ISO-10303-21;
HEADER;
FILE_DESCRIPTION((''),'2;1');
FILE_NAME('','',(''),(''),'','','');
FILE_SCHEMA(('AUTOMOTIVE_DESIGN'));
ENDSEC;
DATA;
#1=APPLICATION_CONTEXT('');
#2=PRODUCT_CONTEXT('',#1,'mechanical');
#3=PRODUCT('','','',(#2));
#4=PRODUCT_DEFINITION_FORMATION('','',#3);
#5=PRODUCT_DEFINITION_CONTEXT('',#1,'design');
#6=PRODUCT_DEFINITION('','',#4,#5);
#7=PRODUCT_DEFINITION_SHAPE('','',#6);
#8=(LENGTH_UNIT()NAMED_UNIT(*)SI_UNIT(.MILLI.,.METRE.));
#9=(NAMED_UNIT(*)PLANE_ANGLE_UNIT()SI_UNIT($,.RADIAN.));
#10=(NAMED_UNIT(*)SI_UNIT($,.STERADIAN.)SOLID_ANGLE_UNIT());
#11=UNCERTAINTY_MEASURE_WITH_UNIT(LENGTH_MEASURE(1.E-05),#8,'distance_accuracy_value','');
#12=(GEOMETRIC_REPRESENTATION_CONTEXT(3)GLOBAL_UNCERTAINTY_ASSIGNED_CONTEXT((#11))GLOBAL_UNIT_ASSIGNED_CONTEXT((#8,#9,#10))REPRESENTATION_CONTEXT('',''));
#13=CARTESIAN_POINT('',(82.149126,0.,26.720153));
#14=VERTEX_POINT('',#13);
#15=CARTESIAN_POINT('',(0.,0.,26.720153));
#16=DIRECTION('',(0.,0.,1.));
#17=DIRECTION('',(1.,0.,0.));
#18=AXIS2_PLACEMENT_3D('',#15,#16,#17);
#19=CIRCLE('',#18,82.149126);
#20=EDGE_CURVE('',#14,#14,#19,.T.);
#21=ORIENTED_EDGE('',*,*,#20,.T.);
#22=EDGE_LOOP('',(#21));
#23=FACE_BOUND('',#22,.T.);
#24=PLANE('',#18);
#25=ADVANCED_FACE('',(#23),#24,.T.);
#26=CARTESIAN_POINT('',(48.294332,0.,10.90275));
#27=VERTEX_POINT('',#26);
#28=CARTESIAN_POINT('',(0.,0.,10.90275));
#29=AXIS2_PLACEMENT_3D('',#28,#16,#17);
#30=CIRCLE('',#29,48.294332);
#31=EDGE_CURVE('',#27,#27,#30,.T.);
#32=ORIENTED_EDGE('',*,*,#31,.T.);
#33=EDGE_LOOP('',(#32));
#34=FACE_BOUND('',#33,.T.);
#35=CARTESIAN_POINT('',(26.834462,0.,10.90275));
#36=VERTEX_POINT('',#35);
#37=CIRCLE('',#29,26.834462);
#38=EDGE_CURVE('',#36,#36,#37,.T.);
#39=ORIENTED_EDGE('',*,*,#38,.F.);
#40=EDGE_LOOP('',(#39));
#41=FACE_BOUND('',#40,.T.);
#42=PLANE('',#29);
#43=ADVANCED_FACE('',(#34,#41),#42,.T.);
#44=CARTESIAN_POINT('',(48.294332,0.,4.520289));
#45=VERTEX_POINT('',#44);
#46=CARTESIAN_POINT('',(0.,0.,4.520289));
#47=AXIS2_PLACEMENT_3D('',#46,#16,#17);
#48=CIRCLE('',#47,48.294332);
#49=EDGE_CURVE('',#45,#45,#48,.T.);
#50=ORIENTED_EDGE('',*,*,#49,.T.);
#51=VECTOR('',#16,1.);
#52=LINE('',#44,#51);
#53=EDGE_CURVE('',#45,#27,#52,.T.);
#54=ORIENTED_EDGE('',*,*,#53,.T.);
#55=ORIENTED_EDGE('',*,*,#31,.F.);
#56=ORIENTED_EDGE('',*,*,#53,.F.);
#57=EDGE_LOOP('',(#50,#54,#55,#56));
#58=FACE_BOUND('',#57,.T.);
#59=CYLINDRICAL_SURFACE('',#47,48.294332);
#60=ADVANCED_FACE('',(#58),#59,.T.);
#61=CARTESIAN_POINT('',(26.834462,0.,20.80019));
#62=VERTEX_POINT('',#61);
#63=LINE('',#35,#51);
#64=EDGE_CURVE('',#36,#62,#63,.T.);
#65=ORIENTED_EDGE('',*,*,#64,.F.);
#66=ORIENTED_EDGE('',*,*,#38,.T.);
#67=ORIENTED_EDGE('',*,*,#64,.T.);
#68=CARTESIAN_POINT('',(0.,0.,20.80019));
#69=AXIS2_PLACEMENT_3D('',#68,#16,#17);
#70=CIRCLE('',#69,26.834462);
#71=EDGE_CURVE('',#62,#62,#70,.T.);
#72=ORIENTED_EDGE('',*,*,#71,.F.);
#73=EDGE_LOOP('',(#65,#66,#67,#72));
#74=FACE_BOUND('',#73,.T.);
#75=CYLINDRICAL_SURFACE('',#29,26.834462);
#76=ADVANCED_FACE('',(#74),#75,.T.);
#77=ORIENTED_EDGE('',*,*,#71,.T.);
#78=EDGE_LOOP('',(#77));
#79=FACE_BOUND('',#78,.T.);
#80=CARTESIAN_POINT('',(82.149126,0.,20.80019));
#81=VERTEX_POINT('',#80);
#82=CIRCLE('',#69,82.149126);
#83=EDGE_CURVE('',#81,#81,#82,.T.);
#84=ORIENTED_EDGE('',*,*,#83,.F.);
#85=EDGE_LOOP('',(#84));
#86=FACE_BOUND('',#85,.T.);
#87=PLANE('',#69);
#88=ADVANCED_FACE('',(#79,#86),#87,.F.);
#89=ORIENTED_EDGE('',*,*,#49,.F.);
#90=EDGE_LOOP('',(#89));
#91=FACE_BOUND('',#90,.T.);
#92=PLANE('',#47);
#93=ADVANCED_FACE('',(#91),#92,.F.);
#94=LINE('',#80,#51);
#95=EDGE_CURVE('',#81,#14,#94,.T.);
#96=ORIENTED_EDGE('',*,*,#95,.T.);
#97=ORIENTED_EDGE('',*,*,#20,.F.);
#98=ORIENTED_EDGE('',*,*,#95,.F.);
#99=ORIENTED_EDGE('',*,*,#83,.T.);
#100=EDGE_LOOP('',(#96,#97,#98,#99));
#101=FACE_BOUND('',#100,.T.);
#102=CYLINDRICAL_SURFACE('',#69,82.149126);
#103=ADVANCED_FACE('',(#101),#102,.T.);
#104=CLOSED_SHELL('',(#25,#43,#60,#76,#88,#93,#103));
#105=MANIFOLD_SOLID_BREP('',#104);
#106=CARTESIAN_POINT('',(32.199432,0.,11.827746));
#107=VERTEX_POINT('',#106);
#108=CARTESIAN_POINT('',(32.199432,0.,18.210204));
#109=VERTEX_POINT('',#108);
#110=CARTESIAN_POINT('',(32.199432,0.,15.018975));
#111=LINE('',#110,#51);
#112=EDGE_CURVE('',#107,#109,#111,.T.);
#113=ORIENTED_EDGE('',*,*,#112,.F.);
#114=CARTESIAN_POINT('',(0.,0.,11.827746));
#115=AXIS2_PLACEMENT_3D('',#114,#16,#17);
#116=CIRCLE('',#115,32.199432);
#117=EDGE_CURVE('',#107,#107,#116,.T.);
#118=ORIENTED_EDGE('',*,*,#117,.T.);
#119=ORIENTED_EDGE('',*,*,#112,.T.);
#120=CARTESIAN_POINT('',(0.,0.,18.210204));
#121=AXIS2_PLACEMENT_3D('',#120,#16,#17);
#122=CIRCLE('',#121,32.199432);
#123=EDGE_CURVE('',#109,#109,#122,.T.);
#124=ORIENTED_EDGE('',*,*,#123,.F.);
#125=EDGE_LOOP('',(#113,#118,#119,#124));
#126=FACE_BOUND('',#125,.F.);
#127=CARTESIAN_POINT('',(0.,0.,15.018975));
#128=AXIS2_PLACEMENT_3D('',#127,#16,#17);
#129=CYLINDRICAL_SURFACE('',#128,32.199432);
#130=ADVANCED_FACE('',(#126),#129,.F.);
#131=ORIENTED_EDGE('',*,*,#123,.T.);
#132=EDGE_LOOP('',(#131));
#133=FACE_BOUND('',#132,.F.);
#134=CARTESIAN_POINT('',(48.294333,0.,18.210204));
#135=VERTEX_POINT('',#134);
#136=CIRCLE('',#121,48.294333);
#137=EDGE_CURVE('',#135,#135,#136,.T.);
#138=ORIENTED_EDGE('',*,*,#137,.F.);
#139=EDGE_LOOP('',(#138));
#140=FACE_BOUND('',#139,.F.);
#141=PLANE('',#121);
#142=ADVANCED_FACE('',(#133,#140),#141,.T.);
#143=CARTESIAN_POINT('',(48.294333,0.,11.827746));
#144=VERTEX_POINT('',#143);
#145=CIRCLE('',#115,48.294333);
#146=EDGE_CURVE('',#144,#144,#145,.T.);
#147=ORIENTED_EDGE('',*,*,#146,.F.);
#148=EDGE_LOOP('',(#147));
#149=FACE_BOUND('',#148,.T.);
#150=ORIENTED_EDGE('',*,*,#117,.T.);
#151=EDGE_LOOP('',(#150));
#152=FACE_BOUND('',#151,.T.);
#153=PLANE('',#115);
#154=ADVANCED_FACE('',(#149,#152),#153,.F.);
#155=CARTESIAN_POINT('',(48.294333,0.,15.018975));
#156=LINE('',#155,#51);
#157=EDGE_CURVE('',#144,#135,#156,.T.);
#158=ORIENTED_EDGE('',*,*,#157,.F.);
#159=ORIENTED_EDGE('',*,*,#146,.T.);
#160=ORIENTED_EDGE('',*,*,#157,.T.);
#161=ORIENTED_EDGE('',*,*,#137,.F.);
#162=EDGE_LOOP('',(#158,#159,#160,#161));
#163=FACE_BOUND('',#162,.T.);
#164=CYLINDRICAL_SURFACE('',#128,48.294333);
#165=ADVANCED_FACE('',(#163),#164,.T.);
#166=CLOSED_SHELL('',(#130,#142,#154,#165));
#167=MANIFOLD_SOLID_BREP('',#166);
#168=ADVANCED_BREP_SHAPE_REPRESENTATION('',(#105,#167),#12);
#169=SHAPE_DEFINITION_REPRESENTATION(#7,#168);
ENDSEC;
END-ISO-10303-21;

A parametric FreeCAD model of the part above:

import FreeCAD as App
import Part
import Sketcher
from FreeCAD import Vector


def add_polygon(sketch, points):
    """Adds a closed chain of lines whose ends are joined by coincident constraints."""
    first, n = sketch.GeometryCount, len(points)
    for a, b in zip(points, points[1:] + points[:1]):
        sketch.addGeometry(Part.LineSegment(App.Vector(*a, 0), App.Vector(*b, 0)), False)
    for i in range(n):
        sketch.addConstraint(Sketcher.Constraint("Coincident", first + i, 2, first + (i + 1) % n, 1))

doc = App.newDocument("Part")
body = doc.addObject("PartDesign::Body", "Body")
body.AllowCompound = True

# Sketch on XZ plane
sketch1 = body.newObject("Sketcher::SketchObject", "Sketch")
sketch1.AttachmentSupport = (doc.getObject("XZ_Plane"), [""])
sketch1.MapMode = "FlatFace"
add_polygon(sketch1, [(26.834462, 10.90275), (26.834462, 20.80019), (82.149126, 20.80019), (82.149126, 26.720153), (0, 26.720153), (0, 4.520289), (48.294332, 4.520289), (48.294332, 10.90275)])  # lines 0-7
add_polygon(sketch1, [(32.199432, 18.210204), (32.199432, 11.827746), (48.294333, 11.827746), (48.294333, 18.210204)])  # lines 8-11
sketch1.addConstraint(Sketcher.Constraint("Vertical", 0))
sketch1.addConstraint(Sketcher.Constraint("Horizontal", 1))
sketch1.addConstraint(Sketcher.Constraint("Vertical", 2))
sketch1.addConstraint(Sketcher.Constraint("Horizontal", 3))
sketch1.addConstraint(Sketcher.Constraint("Vertical", 4))
sketch1.addConstraint(Sketcher.Constraint("Horizontal", 5))
sketch1.addConstraint(Sketcher.Constraint("Vertical", 6))
sketch1.addConstraint(Sketcher.Constraint("Horizontal", 7))
sketch1.addConstraint(Sketcher.Constraint("Vertical", 8))
sketch1.addConstraint(Sketcher.Constraint("Horizontal", 9))
sketch1.addConstraint(Sketcher.Constraint("Vertical", 10))
sketch1.addConstraint(Sketcher.Constraint("Horizontal", 11))
sketch1.addConstraint(Sketcher.Constraint("PointOnObject", 3, 2, -2))
sketch1.addConstraint(Sketcher.Constraint("Vertical", 6, 2, 9, 2))
sketch1.addConstraint(Sketcher.Constraint("DistanceX", 9, 1, 9, 2, 16.094901))
sketch1.addConstraint(Sketcher.Constraint("DistanceX", 5, 1, 5, 2, 48.294332))
sketch1.addConstraint(Sketcher.Constraint("DistanceX", 7, 2, 7, 1, 21.45987))
sketch1.addConstraint(Sketcher.Constraint("DistanceY", 0, 1, 0, 2, 9.89744))
sketch1.addConstraint(Sketcher.Constraint("DistanceY", 6, 1, 6, 2, 6.382461))
sketch1.addConstraint(Sketcher.Constraint("DistanceY", 8, 2, 8, 1, 6.382459))
sketch1.addConstraint(Sketcher.Constraint("DistanceX", 1, 1, 1, 2, 55.314664))
sketch1.addConstraint(Sketcher.Constraint("DistanceY", 2, 1, 2, 2, 5.919963))
sketch1.addConstraint(Sketcher.Constraint("DistanceY", -1, 1, 0, 2, 20.80019))
sketch1.addConstraint(Sketcher.Constraint("DistanceY", -1, 1, 8, 2, 11.827746))
revolution = body.newObject("PartDesign::Revolution", "Revolution")
revolution.Profile = sketch1
revolution.ReferenceAxis = (sketch1, ["V_Axis"])
revolution.Angle = 360

doc.recompute()
